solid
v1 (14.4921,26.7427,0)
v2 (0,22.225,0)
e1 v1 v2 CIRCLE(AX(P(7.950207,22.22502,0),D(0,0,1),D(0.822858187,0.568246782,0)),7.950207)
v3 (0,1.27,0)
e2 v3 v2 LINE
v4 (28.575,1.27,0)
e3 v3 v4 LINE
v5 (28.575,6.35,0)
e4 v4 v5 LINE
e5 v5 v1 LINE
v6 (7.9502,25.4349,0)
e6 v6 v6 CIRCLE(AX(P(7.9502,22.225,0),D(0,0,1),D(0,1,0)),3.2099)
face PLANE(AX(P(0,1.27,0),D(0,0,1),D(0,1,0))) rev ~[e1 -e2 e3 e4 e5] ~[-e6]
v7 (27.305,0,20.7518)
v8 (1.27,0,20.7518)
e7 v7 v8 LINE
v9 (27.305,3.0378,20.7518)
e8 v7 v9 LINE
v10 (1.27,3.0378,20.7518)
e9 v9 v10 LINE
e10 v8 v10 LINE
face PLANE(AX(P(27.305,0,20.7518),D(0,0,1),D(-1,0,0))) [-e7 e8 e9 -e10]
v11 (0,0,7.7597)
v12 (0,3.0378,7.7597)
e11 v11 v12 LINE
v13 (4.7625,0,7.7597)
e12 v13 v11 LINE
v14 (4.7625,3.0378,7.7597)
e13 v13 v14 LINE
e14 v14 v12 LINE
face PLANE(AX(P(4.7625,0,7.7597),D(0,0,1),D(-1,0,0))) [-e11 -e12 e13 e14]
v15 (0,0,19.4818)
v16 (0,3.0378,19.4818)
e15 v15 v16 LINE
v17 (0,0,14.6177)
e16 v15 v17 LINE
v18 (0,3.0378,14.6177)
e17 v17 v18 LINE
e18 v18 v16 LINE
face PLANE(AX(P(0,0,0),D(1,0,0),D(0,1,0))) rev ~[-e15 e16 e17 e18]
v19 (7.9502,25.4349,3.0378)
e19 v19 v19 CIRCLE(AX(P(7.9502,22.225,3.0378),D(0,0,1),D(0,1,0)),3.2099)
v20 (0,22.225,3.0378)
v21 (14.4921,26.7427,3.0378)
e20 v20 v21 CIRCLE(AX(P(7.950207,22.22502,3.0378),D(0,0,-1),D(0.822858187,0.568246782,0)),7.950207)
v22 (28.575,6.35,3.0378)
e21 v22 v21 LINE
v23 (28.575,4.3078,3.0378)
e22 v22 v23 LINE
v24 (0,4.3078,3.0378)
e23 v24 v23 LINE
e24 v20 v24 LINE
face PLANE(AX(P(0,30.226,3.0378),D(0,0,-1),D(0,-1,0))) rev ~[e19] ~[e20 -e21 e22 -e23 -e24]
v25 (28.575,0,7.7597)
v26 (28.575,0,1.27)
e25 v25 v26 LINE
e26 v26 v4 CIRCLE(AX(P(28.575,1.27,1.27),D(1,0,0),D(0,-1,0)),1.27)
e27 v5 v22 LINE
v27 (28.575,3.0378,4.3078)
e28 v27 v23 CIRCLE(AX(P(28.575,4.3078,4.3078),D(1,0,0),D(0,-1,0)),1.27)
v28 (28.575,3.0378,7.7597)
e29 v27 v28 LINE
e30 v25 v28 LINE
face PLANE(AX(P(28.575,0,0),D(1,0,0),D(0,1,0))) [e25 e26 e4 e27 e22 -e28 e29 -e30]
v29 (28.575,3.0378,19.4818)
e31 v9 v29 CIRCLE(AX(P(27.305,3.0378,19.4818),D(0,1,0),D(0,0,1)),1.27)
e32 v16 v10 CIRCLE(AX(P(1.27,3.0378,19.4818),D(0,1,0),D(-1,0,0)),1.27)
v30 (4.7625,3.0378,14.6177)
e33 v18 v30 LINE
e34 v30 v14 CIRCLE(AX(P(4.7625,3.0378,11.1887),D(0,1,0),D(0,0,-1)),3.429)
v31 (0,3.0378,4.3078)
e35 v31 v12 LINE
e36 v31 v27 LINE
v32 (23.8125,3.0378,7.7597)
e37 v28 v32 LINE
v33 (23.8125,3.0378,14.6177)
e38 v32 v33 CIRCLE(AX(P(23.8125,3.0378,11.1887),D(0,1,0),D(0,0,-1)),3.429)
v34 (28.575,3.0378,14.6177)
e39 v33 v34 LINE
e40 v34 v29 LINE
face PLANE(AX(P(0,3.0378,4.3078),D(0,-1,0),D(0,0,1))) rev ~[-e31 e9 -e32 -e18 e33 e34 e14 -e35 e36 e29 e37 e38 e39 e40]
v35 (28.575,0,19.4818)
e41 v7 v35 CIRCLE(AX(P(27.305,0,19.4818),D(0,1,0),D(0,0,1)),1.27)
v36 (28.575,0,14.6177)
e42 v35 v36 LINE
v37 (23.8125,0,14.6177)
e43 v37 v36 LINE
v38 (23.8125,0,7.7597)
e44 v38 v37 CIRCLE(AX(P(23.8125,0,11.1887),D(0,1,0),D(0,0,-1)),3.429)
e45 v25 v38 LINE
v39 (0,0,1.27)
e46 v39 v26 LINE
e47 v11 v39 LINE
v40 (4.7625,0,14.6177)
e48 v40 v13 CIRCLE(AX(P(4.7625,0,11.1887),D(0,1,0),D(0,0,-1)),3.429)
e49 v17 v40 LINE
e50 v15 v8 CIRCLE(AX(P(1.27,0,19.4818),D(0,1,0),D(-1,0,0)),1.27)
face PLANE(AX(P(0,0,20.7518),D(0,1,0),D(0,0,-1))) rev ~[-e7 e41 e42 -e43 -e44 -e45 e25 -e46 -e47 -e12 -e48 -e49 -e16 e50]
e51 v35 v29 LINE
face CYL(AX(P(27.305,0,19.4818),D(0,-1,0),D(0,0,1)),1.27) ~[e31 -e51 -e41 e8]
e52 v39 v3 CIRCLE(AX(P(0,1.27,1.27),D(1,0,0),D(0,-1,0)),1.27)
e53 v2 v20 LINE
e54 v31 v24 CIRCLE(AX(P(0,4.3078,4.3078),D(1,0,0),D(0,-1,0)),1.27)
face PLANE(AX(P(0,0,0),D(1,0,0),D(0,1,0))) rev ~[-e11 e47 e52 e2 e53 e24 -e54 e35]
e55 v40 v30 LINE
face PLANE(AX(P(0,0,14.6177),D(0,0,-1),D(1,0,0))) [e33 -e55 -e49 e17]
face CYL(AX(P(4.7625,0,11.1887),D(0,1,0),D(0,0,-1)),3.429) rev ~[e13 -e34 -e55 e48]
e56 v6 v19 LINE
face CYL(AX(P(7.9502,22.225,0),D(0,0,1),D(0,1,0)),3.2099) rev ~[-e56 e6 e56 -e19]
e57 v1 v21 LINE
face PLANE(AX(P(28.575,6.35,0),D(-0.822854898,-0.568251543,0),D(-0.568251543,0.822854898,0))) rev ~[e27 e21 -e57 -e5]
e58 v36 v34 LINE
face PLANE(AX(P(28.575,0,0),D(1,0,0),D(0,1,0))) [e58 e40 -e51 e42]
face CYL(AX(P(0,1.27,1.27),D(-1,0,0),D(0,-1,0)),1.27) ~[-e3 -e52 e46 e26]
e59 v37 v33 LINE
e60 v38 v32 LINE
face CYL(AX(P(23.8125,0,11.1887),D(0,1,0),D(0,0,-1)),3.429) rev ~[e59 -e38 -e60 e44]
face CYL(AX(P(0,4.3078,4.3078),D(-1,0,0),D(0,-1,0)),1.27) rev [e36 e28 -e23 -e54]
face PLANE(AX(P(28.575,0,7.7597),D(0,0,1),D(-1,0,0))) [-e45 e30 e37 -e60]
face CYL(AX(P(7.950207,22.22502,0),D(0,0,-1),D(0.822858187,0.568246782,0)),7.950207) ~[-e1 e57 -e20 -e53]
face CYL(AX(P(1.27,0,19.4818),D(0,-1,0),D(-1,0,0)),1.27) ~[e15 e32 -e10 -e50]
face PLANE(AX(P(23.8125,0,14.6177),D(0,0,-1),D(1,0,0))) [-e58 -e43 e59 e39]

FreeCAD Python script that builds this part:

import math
import FreeCAD as App
import Part
import Sketcher
Q = App.Units.Quantity

doc = App.newDocument("Part")
body = doc.addObject("PartDesign::Body", "Body")

sketch1 = body.newObject("Sketcher::SketchObject", "Sketch")
sketch1.AttachmentSupport = (doc.getObject("YZ_Plane"), [""])
sketch1.MapMode = "FlatFace"
sketch1.addGeometry(Part.LineSegment(App.Vector(3, 20.8, 0), App.Vector(0, 20.8, 0)), False)
sketch1.addGeometry(Part.LineSegment(App.Vector(0, 20.8, 0), App.Vector(0, 1.3, 0)), False)
sketch1.addGeometry(Part.ArcOfCircle(Part.Circle(App.Vector(1.3, 1.3, 0), App.Vector(0, 0, 1), 1.3), math.radians(180), math.radians(270)), False)
sketch1.addGeometry(Part.LineSegment(App.Vector(1.3, 0, 0), App.Vector(30.2, 0, 0)), False)
sketch1.addGeometry(Part.LineSegment(App.Vector(30.2, 0, 0), App.Vector(30.2, 3, 0)), False)
sketch1.addGeometry(Part.LineSegment(App.Vector(30.2, 3, 0), App.Vector(4.3, 3, 0)), False)
sketch1.addGeometry(Part.ArcOfCircle(Part.Circle(App.Vector(4.3, 4.3, 0), App.Vector(0, 0, 1), 1.3), math.radians(180), math.radians(270)), False)
sketch1.addGeometry(Part.LineSegment(App.Vector(3, 4.3, 0), App.Vector(3, 20.8, 0)), False)
sketch1.addConstraint(Sketcher.Constraint("Coincident", 0, 2, 1, 1))
sketch1.addConstraint(Sketcher.Constraint("Tangent", 1, 2, 2, 1))
sketch1.addConstraint(Sketcher.Constraint("Tangent", 2, 2, 3, 1))
sketch1.addConstraint(Sketcher.Constraint("Coincident", 3, 2, 4, 1))
sketch1.addConstraint(Sketcher.Constraint("Coincident", 4, 2, 5, 1))
sketch1.addConstraint(Sketcher.Constraint("Tangent", 5, 2, 6, 2))
sketch1.addConstraint(Sketcher.Constraint("Tangent", 6, 1, 7, 1))
sketch1.addConstraint(Sketcher.Constraint("Coincident", 7, 2, 0, 1))
sketch1.addConstraint(Sketcher.Constraint("Horizontal", 0))
sketch1.addConstraint(Sketcher.Constraint("Vertical", 1))
sketch1.addConstraint(Sketcher.Constraint("Horizontal", 3))
sketch1.addConstraint(Sketcher.Constraint("Vertical", 4))
sketch1.addConstraint(Sketcher.Constraint("Horizontal", 5))
sketch1.addConstraint(Sketcher.Constraint("Vertical", 7))
sketch1.addConstraint(Sketcher.Constraint("Equal", 2, 6))
sketch1.addConstraint(Sketcher.Constraint("PointOnObject", 0, 2, -2))
sketch1.addConstraint(Sketcher.Constraint("PointOnObject", 2, 2, -1))
sketch1.addConstraint(Sketcher.Constraint("Equal", 0, 4))
sketch1.addConstraint(Sketcher.Constraint("Radius", 2, Q("0.05 in")))
sketch1.addConstraint(Sketcher.Constraint("DistanceX", 3, 1, 3, 2, Q("1.14 in")))
sketch1.addConstraint(Sketcher.Constraint("DistanceY", 1, 2, 1, 1, Q("0.767 in")))
sketch1.addConstraint(Sketcher.Constraint("DistanceX", 0, 2, 0, 1, Q("0.1196 in")))
pad1 = body.newObject("PartDesign::Pad", "Pad")
pad1.Profile = sketch1
pad1.Length = Q("1.125 in")

sketch2 = body.newObject("Sketcher::SketchObject", "Sketch001")
sketch2.AttachmentSupport = (doc.getObject("XY_Plane"), [""])
sketch2.MapMode = "FlatFace"
sketch2.addGeometry(Part.LineSegment(App.Vector(-29, 45, 0), App.Vector(-29, -30, 0)), False)
sketch2.addGeometry(Part.LineSegment(App.Vector(-29, -30, 0), App.Vector(43, -30, 0)), False)
sketch2.addGeometry(Part.LineSegment(App.Vector(43, -30, 0), App.Vector(43, 45, 0)), False)
sketch2.addGeometry(Part.LineSegment(App.Vector(43, 45, 0), App.Vector(-29, 45, 0)), False)
sketch2.addGeometry(Part.LineSegment(App.Vector(29, 0, 0), App.Vector(0, 0, 0)), False)
sketch2.addGeometry(Part.LineSegment(App.Vector(0, 0, 0), App.Vector(0, 22, 0)), False)
sketch2.addGeometry(Part.ArcOfCircle(Part.Circle(App.Vector(8, 22, 0), App.Vector(0, 0, 1), 8), math.radians(35), math.radians(180)), False)
sketch2.addGeometry(Part.LineSegment(App.Vector(14, 27, 0), App.Vector(29, 6, 0)), False)
sketch2.addGeometry(Part.LineSegment(App.Vector(29, 6, 0), App.Vector(29, 0, 0)), False)
sketch2.addConstraint(Sketcher.Constraint("Coincident", 0, 2, 1, 1))
sketch2.addConstraint(Sketcher.Constraint("Coincident", 1, 2, 2, 1))
sketch2.addConstraint(Sketcher.Constraint("Coincident", 2, 2, 3, 1))
sketch2.addConstraint(Sketcher.Constraint("Coincident", 3, 2, 0, 1))
sketch2.addConstraint(Sketcher.Constraint("Coincident", 4, 2, 5, 1))
sketch2.addConstraint(Sketcher.Constraint("Tangent", 5, 2, 6, 2))
sketch2.addConstraint(Sketcher.Constraint("Tangent", 6, 1, 7, 1))
sketch2.addConstraint(Sketcher.Constraint("Coincident", 7, 2, 8, 1))
sketch2.addConstraint(Sketcher.Constraint("Coincident", 8, 2, 4, 1))
sketch2.addConstraint(Sketcher.Constraint("Vertical", 0))
sketch2.addConstraint(Sketcher.Constraint("Horizontal", 1))
sketch2.addConstraint(Sketcher.Constraint("Vertical", 2))
sketch2.addConstraint(Sketcher.Constraint("Horizontal", 3))
sketch2.addConstraint(Sketcher.Constraint("Horizontal", 4))
sketch2.addConstraint(Sketcher.Constraint("Vertical", 5))
sketch2.addConstraint(Sketcher.Constraint("Vertical", 8))
sketch2.addConstraint(Sketcher.Constraint("Coincident", 4, 2, -1, 1))
sketch2.addConstraint(Sketcher.Constraint("Radius", 6, Q("0.313 in")))
sketch2.addConstraint(Sketcher.Constraint("DistanceY", 8, 2, 8, 1, Q("0.25 in")))
sketch2.addConstraint(Sketcher.Constraint("DistanceX", 1, 1, 1, 2, Q("2.8125 in")))
sketch2.addConstraint(Sketcher.Constraint("DistanceX", 4, 2, 4, 1, Q("1.125 in")))
sketch2.addConstraint(Sketcher.Constraint("DistanceY", 0, 2, 0, 1, Q("2.975 in")))
sketch2.addConstraint(Sketcher.Constraint("DistanceY", 5, 1, 5, 2, Q("0.875 in")))
sketch2.addConstraint(Sketcher.Constraint("DistanceY", 0, 2, -1, 1, Q("1.19 in")))
sketch2.addConstraint(Sketcher.Constraint("DistanceX", 0, 2, -1, 1, Q("1.125 in")))
pocket1 = body.newObject("PartDesign::Pocket", "Pocket")
pocket1.Profile = sketch2
pocket1.Length = Q("0.817 in")
pocket1.Reversed = True

sketch3 = body.newObject("Sketcher::SketchObject", "Sketch002")
sketch3.AttachmentSupport = (doc.getObject("XY_Plane"), [""])
sketch3.MapMode = "FlatFace"
sketch3.addGeometry(Part.Circle(App.Vector(8, 22.2, 0), App.Vector(0, 0, 1), 3.2), False)
sketch3.addConstraint(Sketcher.Constraint("Diameter", 0, 6.4198))
sketch3.addConstraint(Sketcher.Constraint("DistanceX", -1, 1, 0, 3, Q("0.313 in")))
sketch3.addConstraint(Sketcher.Constraint("DistanceY", -1, 1, 0, 3, Q("0.875 in")))
doc.recompute()
hole = body.newObject("PartDesign::Hole", "Hole")
hole.Profile = sketch3
hole.ThreadType = "None"
hole.Diameter = 6.4198
hole.DepthType = "Dimension"
hole.Depth = Q("0.1195984 in")
hole.DrillPoint = "Flat"
hole.Reversed = True

sketch4 = body.newObject("Sketcher::SketchObject", "Sketch003")
sketch4.AttachmentSupport = (doc.getObject("XZ_Plane"), [""])
sketch4.MapMode = "FlatFace"
sketch4.addGeometry(Part.Circle(App.Vector(4.8, 11.2, 0), App.Vector(0, 0, 1), 3.4), False)
sketch4.addConstraint(Sketcher.Constraint("Diameter", 0, Q("0.27 in")))
sketch4.addConstraint(Sketcher.Constraint("DistanceX", -1, 1, 0, 3, Q("0.1875 in")))
sketch4.addConstraint(Sketcher.Constraint("DistanceY", -1, 1, 0, 3, Q("0.4405 in")))
doc.recompute()
hole2 = body.newObject("PartDesign::Hole", "Hole001")
hole2.Profile = sketch4
hole2.ThreadType = "None"
hole2.Diameter = Q("0.27 in")
hole2.DepthType = "Dimension"
hole2.Depth = Q("0.1195984 in")
hole2.DrillPoint = "Flat"

sketch5 = body.newObject("Sketcher::SketchObject", "Sketch004")
sketch5.AttachmentSupport = (doc.getObject("XZ_Plane"), [""])
sketch5.MapMode = "FlatFace"
sketch5.addGeometry(Part.Circle(App.Vector(23.8, 11.2, 0), App.Vector(0, 0, 1), 3.4), False)
sketch5.addConstraint(Sketcher.Constraint("Diameter", 0, Q("0.27 in")))
sketch5.addConstraint(Sketcher.Constraint("DistanceX", -1, 1, 0, 3, Q("0.9375 in")))
sketch5.addConstraint(Sketcher.Constraint("DistanceY", -1, 1, 0, 3, Q("0.4405 in")))
doc.recompute()
hole3 = body.newObject("PartDesign::Hole", "Hole002")
hole3.Profile = sketch5
hole3.ThreadType = "None"
hole3.Diameter = Q("0.27 in")
hole3.DepthType = "Dimension"
hole3.Depth = Q("0.1195984 in")
hole3.DrillPoint = "Flat"

sketch6 = body.newObject("Sketcher::SketchObject", "Sketch005")
sketch6.AttachmentSupport = (doc.getObject("XZ_Plane"), [""])
sketch6.MapMode = "FlatFace"
sketch6.addGeometry(Part.LineSegment(App.Vector(4.8, 7.8, 0), App.Vector(0, 7.8, 0)), False)
sketch6.addGeometry(Part.LineSegment(App.Vector(0, 7.8, 0), App.Vector(0, 14.6, 0)), False)
sketch6.addGeometry(Part.LineSegment(App.Vector(0, 14.6, 0), App.Vector(4.8, 14.6, 0)), False)
sketch6.addGeometry(Part.LineSegment(App.Vector(4.8, 14.6, 0), App.Vector(4.8, 7.8, 0)), False)
sketch6.addConstraint(Sketcher.Constraint("Coincident", 0, 2, 1, 1))
sketch6.addConstraint(Sketcher.Constraint("Coincident", 1, 2, 2, 1))
sketch6.addConstraint(Sketcher.Constraint("Coincident", 2, 2, 3, 1))
sketch6.addConstraint(Sketcher.Constraint("Coincident", 3, 2, 0, 1))
sketch6.addConstraint(Sketcher.Constraint("Horizontal", 0))
sketch6.addConstraint(Sketcher.Constraint("Vertical", 1))
sketch6.addConstraint(Sketcher.Constraint("Horizontal", 2))
sketch6.addConstraint(Sketcher.Constraint("Vertical", 3))
sketch6.addConstraint(Sketcher.Constraint("PointOnObject", 0, 2, -2))
sketch6.addConstraint(Sketcher.Constraint("DistanceY", 1, 1, 1, 2, Q("0.27 in")))
sketch6.addConstraint(Sketcher.Constraint("DistanceX", 0, 2, 0, 1, Q("0.1875 in")))
sketch6.addConstraint(Sketcher.Constraint("DistanceY", -1, 1, 0, 2, Q("0.3055 in")))
pocket2 = body.newObject("PartDesign::Pocket", "Pocket001")
pocket2.Profile = sketch6
pocket2.Length = Q("0.1195984 in")

sketch7 = body.newObject("Sketcher::SketchObject", "Sketch006")
sketch7.AttachmentSupport = (doc.getObject("XZ_Plane"), [""])
sketch7.MapMode = "FlatFace"
sketch7.addGeometry(Part.LineSegment(App.Vector(28.6, 7.8, 0), App.Vector(23.8, 7.8, 0)), False)
sketch7.addGeometry(Part.LineSegment(App.Vector(23.8, 7.8, 0), App.Vector(23.8, 14.6, 0)), False)
sketch7.addGeometry(Part.LineSegment(App.Vector(23.8, 14.6, 0), App.Vector(28.6, 14.6, 0)), False)
sketch7.addGeometry(Part.LineSegment(App.Vector(28.6, 14.6, 0), App.Vector(28.6, 7.8, 0)), False)
sketch7.addConstraint(Sketcher.Constraint("Coincident", 0, 2, 1, 1))
sketch7.addConstraint(Sketcher.Constraint("Coincident", 1, 2, 2, 1))
sketch7.addConstraint(Sketcher.Constraint("Coincident", 2, 2, 3, 1))
sketch7.addConstraint(Sketcher.Constraint("Coincident", 3, 2, 0, 1))
sketch7.addConstraint(Sketcher.Constraint("Horizontal", 0))
sketch7.addConstraint(Sketcher.Constraint("Vertical", 1))
sketch7.addConstraint(Sketcher.Constraint("Horizontal", 2))
sketch7.addConstraint(Sketcher.Constraint("Vertical", 3))
sketch7.addConstraint(Sketcher.Constraint("DistanceY", 1, 1, 1, 2, Q("0.27 in")))
sketch7.addConstraint(Sketcher.Constraint("DistanceX", 0, 2, 0, 1, Q("0.1875 in")))
sketch7.addConstraint(Sketcher.Constraint("DistanceX", -1, 1, 0, 2, Q("0.9375 in")))
sketch7.addConstraint(Sketcher.Constraint("DistanceY", -1, 1, 0, 2, Q("0.3055 in")))
pocket3 = body.newObject("PartDesign::Pocket", "Pocket002")
pocket3.Profile = sketch7
pocket3.Length = Q("0.1195984 in")

sketch8 = body.newObject("Sketcher::SketchObject", "Sketch007")
sketch8.AttachmentSupport = (doc.getObject("XZ_Plane"), [""])
sketch8.MapMode = "FlatFace"
sketch8.addGeometry(Part.LineSegment(App.Vector(0, 19.5, 0), App.Vector(0, 31.1, 0)), False)
sketch8.addGeometry(Part.LineSegment(App.Vector(0, 31.1, 0), App.Vector(28.6, 31.1, 0)), False)
sketch8.addGeometry(Part.LineSegment(App.Vector(28.6, 31.1, 0), App.Vector(28.6, 19.5, 0)), False)
sketch8.addGeometry(Part.ArcOfCircle(Part.Circle(App.Vector(27.3, 19.5, 0), App.Vector(0, 0, 1), 1.3), math.radians(0), math.radians(90)), False)
sketch8.addGeometry(Part.LineSegment(App.Vector(27.3, 20.8, 0), App.Vector(1.3, 20.8, 0)), False)
sketch8.addGeometry(Part.ArcOfCircle(Part.Circle(App.Vector(1.3, 19.5, 0), App.Vector(0, 0, 1), 1.3), math.radians(90), math.radians(180)), False)
sketch8.addConstraint(Sketcher.Constraint("Coincident", 0, 2, 1, 1))
sketch8.addConstraint(Sketcher.Constraint("Coincident", 1, 2, 2, 1))
sketch8.addConstraint(Sketcher.Constraint("Tangent", 2, 2, 3, 1))
sketch8.addConstraint(Sketcher.Constraint("Tangent", 3, 2, 4, 1))
sketch8.addConstraint(Sketcher.Constraint("Tangent", 4, 2, 5, 1))
sketch8.addConstraint(Sketcher.Constraint("Tangent", 5, 2, 0, 1))
sketch8.addConstraint(Sketcher.Constraint("Vertical", 0))
sketch8.addConstraint(Sketcher.Constraint("Horizontal", 1))
sketch8.addConstraint(Sketcher.Constraint("Vertical", 2))
sketch8.addConstraint(Sketcher.Constraint("Horizontal", 4))
sketch8.addConstraint(Sketcher.Constraint("Equal", 3, 5))
sketch8.addConstraint(Sketcher.Constraint("PointOnObject", 0, 2, -2))
sketch8.addConstraint(Sketcher.Constraint("Radius", 3, Q("0.05 in")))
sketch8.addConstraint(Sketcher.Constraint("DistanceX", 1, 1, 1, 2, Q("1.125 in")))
sketch8.addConstraint(Sketcher.Constraint("DistanceY", 0, 1, 0, 2, Q("0.4585 in")))
sketch8.addConstraint(Sketcher.Constraint("DistanceY", -1, 1, 3, 3, Q("0.767 in")))
pocket4 = body.newObject("PartDesign::Pocket", "Pocket003")
pocket4.Profile = sketch8
pocket4.Length = Q("0.1195984 in")

doc.recompute()
